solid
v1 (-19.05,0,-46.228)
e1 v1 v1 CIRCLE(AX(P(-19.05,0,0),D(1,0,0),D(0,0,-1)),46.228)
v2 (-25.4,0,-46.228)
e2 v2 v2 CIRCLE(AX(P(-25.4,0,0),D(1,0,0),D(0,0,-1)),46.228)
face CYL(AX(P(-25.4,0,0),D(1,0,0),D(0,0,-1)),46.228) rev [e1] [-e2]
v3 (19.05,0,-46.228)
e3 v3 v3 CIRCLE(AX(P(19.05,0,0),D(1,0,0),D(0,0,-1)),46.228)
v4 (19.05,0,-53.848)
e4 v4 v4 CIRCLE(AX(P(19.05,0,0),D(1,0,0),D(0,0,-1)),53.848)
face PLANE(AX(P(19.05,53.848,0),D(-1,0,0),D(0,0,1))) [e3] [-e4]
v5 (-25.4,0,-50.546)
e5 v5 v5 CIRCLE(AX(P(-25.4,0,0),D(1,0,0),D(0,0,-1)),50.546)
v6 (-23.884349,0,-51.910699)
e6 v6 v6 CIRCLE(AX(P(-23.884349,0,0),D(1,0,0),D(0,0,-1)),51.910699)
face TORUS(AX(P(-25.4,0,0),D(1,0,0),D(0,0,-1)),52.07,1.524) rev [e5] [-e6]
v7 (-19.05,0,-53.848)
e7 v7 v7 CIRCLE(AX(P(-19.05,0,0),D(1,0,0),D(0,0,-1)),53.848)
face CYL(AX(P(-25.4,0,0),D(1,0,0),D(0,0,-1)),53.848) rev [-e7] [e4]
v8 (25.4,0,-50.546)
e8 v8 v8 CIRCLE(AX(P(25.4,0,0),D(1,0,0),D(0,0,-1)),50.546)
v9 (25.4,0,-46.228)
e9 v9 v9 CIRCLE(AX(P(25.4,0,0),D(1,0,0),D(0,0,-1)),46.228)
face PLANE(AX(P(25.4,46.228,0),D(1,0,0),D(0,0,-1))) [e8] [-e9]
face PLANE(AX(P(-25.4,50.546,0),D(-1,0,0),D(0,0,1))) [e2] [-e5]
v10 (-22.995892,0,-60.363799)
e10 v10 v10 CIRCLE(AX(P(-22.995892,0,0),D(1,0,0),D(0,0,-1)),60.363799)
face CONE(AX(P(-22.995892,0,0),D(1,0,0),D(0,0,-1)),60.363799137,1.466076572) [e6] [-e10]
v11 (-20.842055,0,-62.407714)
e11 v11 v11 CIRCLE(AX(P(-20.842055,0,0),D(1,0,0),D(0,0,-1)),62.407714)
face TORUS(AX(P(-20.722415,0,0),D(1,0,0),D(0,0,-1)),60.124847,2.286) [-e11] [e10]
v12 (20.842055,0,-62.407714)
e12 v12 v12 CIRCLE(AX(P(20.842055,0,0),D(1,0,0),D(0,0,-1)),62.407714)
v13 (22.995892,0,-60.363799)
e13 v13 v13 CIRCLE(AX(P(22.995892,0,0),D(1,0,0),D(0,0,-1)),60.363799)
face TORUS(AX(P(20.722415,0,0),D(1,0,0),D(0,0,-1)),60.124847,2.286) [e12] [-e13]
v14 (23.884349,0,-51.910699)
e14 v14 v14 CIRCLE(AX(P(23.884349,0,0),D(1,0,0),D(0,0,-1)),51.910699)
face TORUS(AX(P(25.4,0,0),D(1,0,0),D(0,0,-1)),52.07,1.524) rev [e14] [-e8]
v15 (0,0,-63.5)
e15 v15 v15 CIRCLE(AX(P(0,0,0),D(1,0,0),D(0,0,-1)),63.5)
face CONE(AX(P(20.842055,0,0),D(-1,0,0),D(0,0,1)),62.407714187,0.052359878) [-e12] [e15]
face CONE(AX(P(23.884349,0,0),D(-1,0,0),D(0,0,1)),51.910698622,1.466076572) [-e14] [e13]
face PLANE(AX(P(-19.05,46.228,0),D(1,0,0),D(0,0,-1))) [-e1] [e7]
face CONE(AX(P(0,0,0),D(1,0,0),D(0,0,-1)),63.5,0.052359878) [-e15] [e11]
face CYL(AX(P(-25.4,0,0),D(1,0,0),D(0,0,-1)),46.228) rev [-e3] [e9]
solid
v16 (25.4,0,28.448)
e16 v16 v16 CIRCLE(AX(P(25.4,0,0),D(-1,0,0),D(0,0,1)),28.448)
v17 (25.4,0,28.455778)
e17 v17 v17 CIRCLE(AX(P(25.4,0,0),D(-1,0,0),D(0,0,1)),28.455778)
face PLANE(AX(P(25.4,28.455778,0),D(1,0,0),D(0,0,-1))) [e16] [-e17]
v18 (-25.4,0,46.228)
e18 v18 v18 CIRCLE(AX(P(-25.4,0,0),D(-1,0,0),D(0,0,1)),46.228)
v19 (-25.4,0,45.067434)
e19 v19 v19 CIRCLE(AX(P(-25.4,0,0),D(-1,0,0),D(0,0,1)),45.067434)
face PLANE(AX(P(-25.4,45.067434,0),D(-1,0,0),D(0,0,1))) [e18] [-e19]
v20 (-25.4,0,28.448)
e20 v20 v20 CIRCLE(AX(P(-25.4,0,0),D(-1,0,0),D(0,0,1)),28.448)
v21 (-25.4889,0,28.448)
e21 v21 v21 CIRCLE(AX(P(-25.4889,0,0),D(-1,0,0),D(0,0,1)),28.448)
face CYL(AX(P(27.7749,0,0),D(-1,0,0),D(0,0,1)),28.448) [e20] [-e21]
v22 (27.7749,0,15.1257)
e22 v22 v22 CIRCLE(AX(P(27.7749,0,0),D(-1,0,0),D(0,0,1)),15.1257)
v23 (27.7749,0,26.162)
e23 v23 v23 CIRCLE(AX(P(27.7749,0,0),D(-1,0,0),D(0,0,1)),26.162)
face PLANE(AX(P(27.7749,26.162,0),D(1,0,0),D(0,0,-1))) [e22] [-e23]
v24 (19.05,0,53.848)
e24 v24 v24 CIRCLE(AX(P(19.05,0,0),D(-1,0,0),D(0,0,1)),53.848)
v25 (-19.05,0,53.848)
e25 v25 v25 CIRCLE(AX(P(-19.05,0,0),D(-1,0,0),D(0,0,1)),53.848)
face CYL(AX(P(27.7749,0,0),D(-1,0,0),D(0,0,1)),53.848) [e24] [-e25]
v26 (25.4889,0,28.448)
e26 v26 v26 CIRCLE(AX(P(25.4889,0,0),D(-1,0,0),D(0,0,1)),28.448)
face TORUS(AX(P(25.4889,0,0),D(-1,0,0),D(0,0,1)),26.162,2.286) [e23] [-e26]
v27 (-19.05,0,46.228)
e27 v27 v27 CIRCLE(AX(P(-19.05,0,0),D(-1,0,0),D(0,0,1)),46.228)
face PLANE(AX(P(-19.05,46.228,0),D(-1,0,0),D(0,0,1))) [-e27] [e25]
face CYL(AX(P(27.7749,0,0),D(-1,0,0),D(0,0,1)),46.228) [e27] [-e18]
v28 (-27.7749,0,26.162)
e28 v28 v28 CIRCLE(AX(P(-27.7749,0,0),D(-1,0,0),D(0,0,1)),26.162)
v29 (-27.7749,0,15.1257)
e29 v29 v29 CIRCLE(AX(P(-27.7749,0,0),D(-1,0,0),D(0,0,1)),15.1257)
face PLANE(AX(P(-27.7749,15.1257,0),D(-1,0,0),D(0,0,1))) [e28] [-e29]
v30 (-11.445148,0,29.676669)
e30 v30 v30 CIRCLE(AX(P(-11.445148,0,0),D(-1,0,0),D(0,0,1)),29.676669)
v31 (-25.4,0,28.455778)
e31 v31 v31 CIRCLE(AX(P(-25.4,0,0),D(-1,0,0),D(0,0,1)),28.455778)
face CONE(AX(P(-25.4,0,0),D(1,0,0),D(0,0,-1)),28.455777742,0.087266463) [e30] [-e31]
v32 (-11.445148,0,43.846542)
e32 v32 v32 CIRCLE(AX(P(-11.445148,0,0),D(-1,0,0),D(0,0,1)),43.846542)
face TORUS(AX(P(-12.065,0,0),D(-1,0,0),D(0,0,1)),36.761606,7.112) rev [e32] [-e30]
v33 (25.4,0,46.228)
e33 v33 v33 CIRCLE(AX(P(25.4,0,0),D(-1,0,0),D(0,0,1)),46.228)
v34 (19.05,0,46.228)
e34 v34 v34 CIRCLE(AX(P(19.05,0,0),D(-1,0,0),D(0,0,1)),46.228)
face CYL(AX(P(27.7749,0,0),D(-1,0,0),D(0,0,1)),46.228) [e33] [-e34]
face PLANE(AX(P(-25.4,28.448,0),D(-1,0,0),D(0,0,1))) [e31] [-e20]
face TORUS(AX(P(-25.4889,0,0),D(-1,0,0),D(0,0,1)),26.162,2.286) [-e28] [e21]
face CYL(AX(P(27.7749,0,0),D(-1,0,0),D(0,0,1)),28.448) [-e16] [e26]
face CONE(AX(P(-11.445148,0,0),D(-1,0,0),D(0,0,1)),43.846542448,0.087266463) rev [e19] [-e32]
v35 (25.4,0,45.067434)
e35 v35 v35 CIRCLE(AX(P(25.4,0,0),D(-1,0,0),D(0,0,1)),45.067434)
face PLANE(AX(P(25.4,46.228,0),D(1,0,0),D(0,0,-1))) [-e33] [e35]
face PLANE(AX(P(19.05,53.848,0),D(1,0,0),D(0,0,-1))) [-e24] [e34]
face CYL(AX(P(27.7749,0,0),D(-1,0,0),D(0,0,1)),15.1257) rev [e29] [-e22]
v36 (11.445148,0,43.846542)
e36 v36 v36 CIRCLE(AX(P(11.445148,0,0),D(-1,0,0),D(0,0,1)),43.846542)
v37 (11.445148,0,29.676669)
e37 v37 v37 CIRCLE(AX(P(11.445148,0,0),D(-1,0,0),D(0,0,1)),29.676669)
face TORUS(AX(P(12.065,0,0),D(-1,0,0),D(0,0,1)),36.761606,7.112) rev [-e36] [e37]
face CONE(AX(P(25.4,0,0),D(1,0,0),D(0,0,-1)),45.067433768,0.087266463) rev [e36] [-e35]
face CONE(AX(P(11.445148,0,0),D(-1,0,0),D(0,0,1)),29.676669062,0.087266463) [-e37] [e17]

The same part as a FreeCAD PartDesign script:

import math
import FreeCAD as App
import Part
import Sketcher

V = App.Vector
Q = App.Units.Quantity

doc = App.newDocument("Part")
params = doc.addObject("Spreadsheet::Sheet", "Params")
for row, (alias, value) in enumerate([
    ("sketch1_radius", "0.06 in"),
    ("sketch1_radius2", "0.09 in"),
    ("sketch1_width", "1.5 in"),
    ("sketch1_height", "0.3 in"),
    ("sketch1_height2", "0.17 in"),
    ("revolution_angle", "360 deg"),
    ("sketch2_radius", "0.09 in"),
    ("sketch2_radius2", "0.28 in"),
    ("sketch2_width", "1.5 in"),
    ("sketch2_height", "0.3 in"),
    ("sketch2_width2", "2.187 in"),
    ("revolution2_angle", "360 deg"),
], start=1):
    params.set(f"A{row}", alias)
    params.set(f"B{row}", "=" + value)
    params.setAlias(f"B{row}", alias)

body = doc.addObject("PartDesign::Body", "Body")

sketch1 = doc.addObject("Sketcher::SketchObject", "Sketch")
body.addObject(sketch1)
sketch1.AttachmentSupport = (doc.XY_Plane, [""])
sketch1.MapMode = "FlatFace"
sketch1.addGeometry([
    Part.LineSegment(V(25.4, 46.2, 0), V(25.4, 50.5, 0)),
    Part.ArcOfCircle(Part.Circle(V(25.4, 52.1, 0), V(0, 0, 1), 1.5), math.radians(-174), math.radians(-90)),
    Part.LineSegment(V(23.9, 51.9, 0), V(23, 60.4, 0)),
    Part.ArcOfCircle(Part.Circle(V(20.7, 60.1, 0), V(0, 0, 1), 2.3), math.radians(6), math.radians(87)),
    Part.LineSegment(V(20.8, 62.4, 0), V(0, 63.5, 0)),
    Part.LineSegment(V(0, 63.5, 0), V(-20.8, 62.4, 0)),
    Part.ArcOfCircle(Part.Circle(V(-20.7, 60.1, 0), V(0, 0, 1), 2.3), math.radians(93), math.radians(174)),
    Part.LineSegment(V(-23, 60.4, 0), V(-23.9, 51.9, 0)),
    Part.ArcOfCircle(Part.Circle(V(-25.4, 52.1, 0), V(0, 0, 1), 1.5), math.radians(-90), math.radians(-6)),
    Part.LineSegment(V(-25.4, 50.5, 0), V(-25.4, 46.2, 0)),
    Part.LineSegment(V(-25.4, 46.2, 0), V(-19.1, 46.2, 0)),
    Part.LineSegment(V(-19.1, 46.2, 0), V(-19.1, 53.8, 0)),
    Part.LineSegment(V(-19.1, 53.8, 0), V(19.1, 53.8, 0)),
    Part.LineSegment(V(19.1, 53.8, 0), V(19.1, 46.2, 0)),
    Part.LineSegment(V(19.1, 46.2, 0), V(25.4, 46.2, 0)),
], False)
sketch1.addConstraint([
    Sketcher.Constraint("Coincident", 0, 2, 1, 2),
    Sketcher.Constraint("Tangent", 1, 1, 2, 1),
    Sketcher.Constraint("Tangent", 2, 2, 3, 1),
    Sketcher.Constraint("Tangent", 3, 2, 4, 1),
    Sketcher.Constraint("Coincident", 4, 2, 5, 1),
    Sketcher.Constraint("Tangent", 5, 2, 6, 1),
    Sketcher.Constraint("Tangent", 6, 2, 7, 1),
    Sketcher.Constraint("Tangent", 7, 2, 8, 2),
    Sketcher.Constraint("Coincident", 8, 1, 9, 1),
    Sketcher.Constraint("Coincident", 9, 2, 10, 1),
    Sketcher.Constraint("Coincident", 10, 2, 11, 1),
    Sketcher.Constraint("Coincident", 11, 2, 12, 1),
    Sketcher.Constraint("Coincident", 12, 2, 13, 1),
    Sketcher.Constraint("Coincident", 13, 2, 14, 1),
    Sketcher.Constraint("Coincident", 14, 2, 0, 1),
    Sketcher.Constraint("Vertical", 0),
    Sketcher.Constraint("Vertical", 9),
    Sketcher.Constraint("Horizontal", 10),
    Sketcher.Constraint("Vertical", 11),
    Sketcher.Constraint("Horizontal", 12),
    Sketcher.Constraint("Vertical", 13),
    Sketcher.Constraint("Horizontal", 14),
    Sketcher.Constraint("Equal", 3, 6),
    Sketcher.Constraint("Equal", 1, 8),
    Sketcher.Constraint("Symmetric", 3, 3, 6, 3, -2),
    Sketcher.Constraint("Symmetric", 1, 3, 8, 3, -2),
    Sketcher.Constraint("Symmetric", 10, 2, 13, 2, -2),
    Sketcher.Constraint("PointOnObject", 4, 2, -2),
    Sketcher.Constraint("Vertical", 1, 3, 0, 2),
    Sketcher.Constraint("Equal", 10, 14),
    Sketcher.Constraint("Radius", 1, Q("0.06 in")),
    Sketcher.Constraint("Radius", 3, Q("0.09 in")),
    Sketcher.Constraint("DistanceX", 12, 1, 12, 2, Q("1.5 in")),
    Sketcher.Constraint("DistanceY", 11, 1, 11, 2, Q("0.3 in")),
    Sketcher.Constraint("DistanceX", -1, 1, 1, 3, Q("1 in")),
    Sketcher.Constraint("Angle", 2, Q("96 deg")),
    Sketcher.Constraint("Angle", 4, Q("177 deg")),
    Sketcher.Constraint("DistanceY", 0, 1, 0, 2, Q("0.17 in")),
    Sketcher.Constraint("DistanceY", -1, 1, 4, 2, Q("2.5 in")),
    Sketcher.Constraint("DistanceY", -1, 1, 1, 3, Q("2.05 in")),
])
sketch1.setExpression("Constraints[30]", "Params.sketch1_radius")
sketch1.setExpression("Constraints[31]", "Params.sketch1_radius2")
sketch1.setExpression("Constraints[32]", "Params.sketch1_width")
sketch1.setExpression("Constraints[33]", "Params.sketch1_height")
sketch1.setExpression("Constraints[37]", "Params.sketch1_height2")
revolution = doc.addObject("PartDesign::Revolution", "Revolution")
body.addObject(revolution)
revolution.Profile = sketch1
revolution.ReferenceAxis = (sketch1, ["H_Axis"])
revolution.setExpression("Angle", "Params.revolution_angle")
body2 = doc.addObject("PartDesign::Body", "Body001")

sketch2 = doc.addObject("Sketcher::SketchObject", "Sketch001")
body2.addObject(sketch2)
sketch2.AttachmentSupport = (doc.getObject("XY_Plane001"), [""])
sketch2.MapMode = "FlatFace"
sketch2.addGeometry([
    Part.LineSegment(V(27.775, 15.126, 0), V(-27.775, 15.126, 0)),
    Part.LineSegment(V(-27.775, 15.126, 0), V(-27.775, 26.162, 0)),
    Part.ArcOfCircle(Part.Circle(V(-25.489, 26.162, 0), V(0, 0, 1), 2.286), math.radians(90), math.radians(180)),
    Part.LineSegment(V(-25.489, 28.448, 0), V(-25.4, 28.448, 0)),
    Part.LineSegment(V(-25.4, 28.448, 0), V(-25.4, 28.456, 0)),
    Part.LineSegment(V(-25.4, 28.456, 0), V(-11.445, 29.677, 0)),
    Part.ArcOfCircle(Part.Circle(V(-12.065, 36.762, 0), V(0, 0, 1), 7.112), math.radians(-85), math.radians(85)),
    Part.LineSegment(V(-11.445, 43.847, 0), V(-25.4, 45.067, 0)),
    Part.LineSegment(V(-25.4, 45.067, 0), V(-25.4, 46.228, 0)),
    Part.LineSegment(V(-25.4, 46.228, 0), V(-19.05, 46.228, 0)),
    Part.LineSegment(V(-19.05, 46.228, 0), V(-19.05, 53.848, 0)),
    Part.LineSegment(V(-19.05, 53.848, 0), V(19.05, 53.848, 0)),
    Part.LineSegment(V(19.05, 53.848, 0), V(19.05, 46.228, 0)),
    Part.LineSegment(V(19.05, 46.228, 0), V(25.4, 46.228, 0)),
    Part.LineSegment(V(25.4, 46.228, 0), V(25.4, 45.067, 0)),
    Part.LineSegment(V(25.4, 45.067, 0), V(11.445, 43.847, 0)),
    Part.ArcOfCircle(Part.Circle(V(12.065, 36.762, 0), V(0, 0, 1), 7.112), math.radians(95), math.radians(265)),
    Part.LineSegment(V(11.445, 29.677, 0), V(25.4, 28.456, 0)),
    Part.LineSegment(V(25.4, 28.456, 0), V(25.4, 28.448, 0)),
    Part.LineSegment(V(25.4, 28.448, 0), V(25.489, 28.448, 0)),
    Part.ArcOfCircle(Part.Circle(V(25.489, 26.162, 0), V(0, 0, 1), 2.286), math.radians(0), math.radians(90)),
    Part.LineSegment(V(27.775, 26.162, 0), V(27.775, 15.126, 0)),
], False)
sketch2.addConstraint([
    Sketcher.Constraint("Coincident", 0, 2, 1, 1),
    Sketcher.Constraint("Tangent", 1, 2, 2, 2),
    Sketcher.Constraint("Tangent", 2, 1, 3, 1),
    Sketcher.Constraint("Coincident", 3, 2, 4, 1),
    Sketcher.Constraint("Coincident", 4, 2, 5, 1),
    Sketcher.Constraint("Tangent", 5, 2, 6, 1),
    Sketcher.Constraint("Tangent", 6, 2, 7, 1),
    Sketcher.Constraint("Coincident", 7, 2, 8, 1),
    Sketcher.Constraint("Coincident", 8, 2, 9, 1),
    Sketcher.Constraint("Coincident", 9, 2, 10, 1),
    Sketcher.Constraint("Coincident", 10, 2, 11, 1),
    Sketcher.Constraint("Coincident", 11, 2, 12, 1),
    Sketcher.Constraint("Coincident", 12, 2, 13, 1),
    Sketcher.Constraint("Coincident", 13, 2, 14, 1),
    Sketcher.Constraint("Coincident", 14, 2, 15, 1),
    Sketcher.Constraint("Tangent", 15, 2, 16, 1),
    Sketcher.Constraint("Tangent", 16, 2, 17, 1),
    Sketcher.Constraint("Coincident", 17, 2, 18, 1),
    Sketcher.Constraint("Coincident", 18, 2, 19, 1),
    Sketcher.Constraint("Tangent", 19, 2, 20, 2),
    Sketcher.Constraint("Tangent", 20, 1, 21, 1),
    Sketcher.Constraint("Coincident", 21, 2, 0, 1),
    Sketcher.Constraint("Horizontal", 0),
    Sketcher.Constraint("Vertical", 1),
    Sketcher.Constraint("Horizontal", 3),
    Sketcher.Constraint("Vertical", 4),
    Sketcher.Constraint("Vertical", 8),
    Sketcher.Constraint("Horizontal", 9),
    Sketcher.Constraint("Vertical", 10),
    Sketcher.Constraint("Horizontal", 11),
    Sketcher.Constraint("Vertical", 12),
    Sketcher.Constraint("Horizontal", 13),
    Sketcher.Constraint("Vertical", 14),
    Sketcher.Constraint("Vertical", 18),
    Sketcher.Constraint("Horizontal", 19),
    Sketcher.Constraint("Vertical", 21),
    Sketcher.Constraint("Equal", 6, 16),
    Sketcher.Constraint("Equal", 2, 20),
    Sketcher.Constraint("Symmetric", 6, 3, 16, 3, -2),
    Sketcher.Constraint("Symmetric", 2, 3, 20, 3, -2),
    Sketcher.Constraint("Symmetric", 9, 2, 12, 2, -2),
    Sketcher.Constraint("Symmetric", 7, 2, 14, 2, -2),
    Sketcher.Constraint("Symmetric", 4, 2, 17, 2, -2),
    Sketcher.Constraint("Parallel", 5, 15),
    Sketcher.Constraint("Vertical", 4, 2, 7, 2),
    Sketcher.Constraint("Radius", 2, Q("0.09 in")),
    Sketcher.Constraint("Radius", 6, Q("0.28 in")),
    Sketcher.Constraint("DistanceX", 11, 1, 11, 2, Q("1.5 in")),
    Sketcher.Constraint("DistanceY", 10, 1, 10, 2, Q("0.3 in")),
    Sketcher.Constraint("DistanceX", 3, 2, -1, 1, Q("1 in")),
    Sketcher.Constraint("Angle", 5, Q("5 deg")),
    Sketcher.Constraint("DistanceY", 3, 2, 8, 2, Q("0.7 in")),
    Sketcher.Constraint("DistanceX", 0, 2, 0, 1, Q("2.187 in")),
    Sketcher.Constraint("DistanceY", -1, 1, 2, 3, Q("1.03 in")),
    Sketcher.Constraint("DistanceX", 6, 3, 16, 3, Q("0.95 in")),
    Sketcher.Constraint("DistanceY", 1, 1, 1, 2, Q("0.4345 in")),
    Sketcher.Constraint("DistanceY", 4, 1, 4, 2, Q("0.007778 mm")),
])
sketch2.setExpression("Constraints[45]", "Params.sketch2_radius")
sketch2.setExpression("Constraints[46]", "Params.sketch2_radius2")
sketch2.setExpression("Constraints[47]", "Params.sketch2_width")
sketch2.setExpression("Constraints[48]", "Params.sketch2_height")
sketch2.setExpression("Constraints[52]", "Params.sketch2_width2")
revolution2 = doc.addObject("PartDesign::Revolution", "Revolution001")
body2.addObject(revolution2)
revolution2.Profile = sketch2
revolution2.ReferenceAxis = (sketch2, ["H_Axis"])
revolution2.setExpression("Angle", "Params.revolution2_angle")

doc.recompute()
